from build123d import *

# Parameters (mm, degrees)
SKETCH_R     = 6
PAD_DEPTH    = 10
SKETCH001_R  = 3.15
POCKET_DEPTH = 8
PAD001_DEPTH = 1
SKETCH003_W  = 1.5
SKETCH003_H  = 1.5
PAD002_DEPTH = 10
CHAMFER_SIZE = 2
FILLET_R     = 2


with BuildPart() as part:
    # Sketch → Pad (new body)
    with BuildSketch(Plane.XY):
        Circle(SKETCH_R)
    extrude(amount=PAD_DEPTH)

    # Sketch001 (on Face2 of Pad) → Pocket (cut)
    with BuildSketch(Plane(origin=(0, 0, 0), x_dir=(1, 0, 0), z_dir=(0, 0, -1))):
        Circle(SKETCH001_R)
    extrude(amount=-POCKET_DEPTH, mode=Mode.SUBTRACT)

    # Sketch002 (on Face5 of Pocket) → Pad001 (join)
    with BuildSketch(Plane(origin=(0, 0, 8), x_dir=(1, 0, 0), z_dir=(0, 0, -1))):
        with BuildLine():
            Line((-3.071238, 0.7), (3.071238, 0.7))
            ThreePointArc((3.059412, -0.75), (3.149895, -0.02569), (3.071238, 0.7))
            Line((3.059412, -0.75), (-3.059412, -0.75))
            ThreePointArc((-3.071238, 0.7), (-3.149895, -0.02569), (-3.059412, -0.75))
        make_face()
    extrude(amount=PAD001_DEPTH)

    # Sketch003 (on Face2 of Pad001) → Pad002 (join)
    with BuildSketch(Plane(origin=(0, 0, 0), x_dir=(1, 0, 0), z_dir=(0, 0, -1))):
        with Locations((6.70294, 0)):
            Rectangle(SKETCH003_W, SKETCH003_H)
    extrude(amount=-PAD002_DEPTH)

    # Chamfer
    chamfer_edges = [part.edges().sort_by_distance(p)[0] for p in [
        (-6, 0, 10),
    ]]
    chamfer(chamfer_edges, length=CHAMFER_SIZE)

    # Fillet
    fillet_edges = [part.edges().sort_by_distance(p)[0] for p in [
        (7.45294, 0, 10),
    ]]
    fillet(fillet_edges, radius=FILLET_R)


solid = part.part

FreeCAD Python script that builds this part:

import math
import FreeCAD as App
import Part
import Sketcher
from FreeCAD import Vector
Q = App.Units.Quantity


def edges_at(feature, points):
    """Names of the edges that pass closest to the given points."""
    edges = feature.Shape.Edges
    near = lambda p: min(range(len(edges)), key=lambda i: edges[i].distToShape(Part.Vertex(*p))[0])
    return sorted({f"Edge{near(p) + 1}" for p in points})


def add_polygon(sketch, points):
    """Adds a closed chain of lines whose ends are joined by coincident constraints."""
    first, n = sketch.GeometryCount, len(points)
    for a, b in zip(points, points[1:] + points[:1]):
        sketch.addGeometry(Part.LineSegment(App.Vector(*a, 0), App.Vector(*b, 0)), False)
    for i in range(n):
        sketch.addConstraint(Sketcher.Constraint("Coincident", first + i, 2, first + (i + 1) % n, 1))

doc = App.newDocument("Part")
body = doc.addObject("PartDesign::Body", "Body")

# Sketch on XY plane
sketch1 = body.newObject("Sketcher::SketchObject", "Sketch")
sketch1.AttachmentSupport = (doc.getObject("XY_Plane"), [""])
sketch1.MapMode = "FlatFace"
sketch1.addGeometry(Part.Circle(Vector(0, 0, 0), Vector(0, 0, 1), 6), False)
sketch1.addConstraint([
    Sketcher.Constraint("Coincident", 0, 3, -1, 1),
    Sketcher.Constraint("Diameter", 0, Q("12 mm")),
])
pad1 = body.newObject("PartDesign::Pad", "Pad")
pad1.Profile = sketch1
pad1.Length = 10

# Sketch on XY plane
sketch2 = body.newObject("Sketcher::SketchObject", "Sketch001")
sketch2.AttachmentSupport = (doc.getObject("XY_Plane"), [""])
sketch2.MapMode = "FlatFace"
sketch2.addGeometry(Part.Circle(Vector(0, 0, 0), Vector(0, 0, 1), 3.1), False)
sketch2.addConstraint([
    Sketcher.Constraint("Coincident", 0, 3, -1, 1),
    Sketcher.Constraint("Diameter", 0, Q("6.3 mm")),
])
pocket1 = body.newObject("PartDesign::Pocket", "Pocket")
pocket1.Profile = sketch2
pocket1.Length = 8
pocket1.Reversed = True

# Sketch on XY plane
sketch3 = body.newObject("Sketcher::SketchObject", "Sketch002")
sketch3.AttachmentSupport = (doc.getObject("XY_Plane"), [""])
sketch3.MapMode = "FlatFace"
sketch3.AttachmentOffset = App.Placement(Vector(0, 0, 8), App.Rotation())
sketch3.addGeometry([
    Part.LineSegment(Vector(3.071238, -0.7, 0), Vector(-3.071238, -0.7, 0)),
    Part.ArcOfCircle(Part.Circle(Vector(0.000023, -0.000001, 0), Vector(0, 0, 1), 3.150022), math.radians(166.225943), math.radians(192.839485)),
    Part.LineSegment(Vector(-3.059412, 0.75, 0), Vector(3.059412, 0.75, 0)),
    Part.ArcOfCircle(Part.Circle(Vector(-0.000023, -0.000001, 0), Vector(0, 0, 1), 3.150022), math.radians(-12.839485), math.radians(13.774057)),
], False)
sketch3.addConstraint([
    Sketcher.Constraint("Coincident", 0, 2, 1, 2),
    Sketcher.Constraint("Coincident", 1, 1, 2, 1),
    Sketcher.Constraint("Coincident", 2, 2, 3, 2),
    Sketcher.Constraint("Coincident", 3, 1, 0, 1),
    Sketcher.Constraint("Horizontal", 0),
    Sketcher.Constraint("Horizontal", 2),
    Sketcher.Constraint("Equal", 1, 3),
    Sketcher.Constraint("Symmetric", 1, 3, 3, 3, -1, 1),
    Sketcher.Constraint("PointOnObject", 1, 3, -1),
    Sketcher.Constraint("DistanceY", 0, 2, -1, 1, Q("0.7 mm")),
    Sketcher.Constraint("DistanceY", -1, 1, 1, 1, Q("0.75 mm")),
    Sketcher.Constraint("Radius", 1, Q("3.150022 mm")),
    Sketcher.Constraint("DistanceX", 0, 2, 0, 1, Q("6.142476 mm")),
])
pad2 = body.newObject("PartDesign::Pad", "Pad001")
pad2.Profile = sketch3
pad2.Length = 1
pad2.Reversed = True

# Sketch on XY plane
sketch4 = body.newObject("Sketcher::SketchObject", "Sketch003")
sketch4.AttachmentSupport = (doc.getObject("XY_Plane"), [""])
sketch4.MapMode = "FlatFace"
add_polygon(sketch4, [(6, -0.8), (6, 0.8), (7.5, 0.8), (7.5, -0.8)])  # lines 0-3
sketch4.addConstraint([
    Sketcher.Constraint("Vertical", 0),
    Sketcher.Constraint("Horizontal", 1),
    Sketcher.Constraint("Vertical", 2),
    Sketcher.Constraint("Horizontal", 3),
    Sketcher.Constraint("Equal", 3, 0),
    Sketcher.Constraint("DistanceX", 1, 1, 1, 2, Q("1.5 mm")),
    Sketcher.Constraint("DistanceY", -1, 1, 0, 2, Q("0.75 mm")),
    Sketcher.Constraint("DistanceX", -1, 1, 0, 2, Q("5.95294 mm")),
])
pad3 = body.newObject("PartDesign::Pad", "Pad002")
pad3.Profile = sketch4
pad3.Length = 10
doc.recompute()

chamfer = body.newObject("PartDesign::Chamfer", "Chamfer")
chamfer.Base = (pad3, edges_at(pad3, [(-6, 0, 10)]))
chamfer.Size = 2
doc.recompute()

fillet = body.newObject("PartDesign::Fillet", "Fillet")
fillet.Base = (chamfer, edges_at(chamfer, [(7.453, 0, 10)]))
fillet.Radius = 2

doc.recompute()
